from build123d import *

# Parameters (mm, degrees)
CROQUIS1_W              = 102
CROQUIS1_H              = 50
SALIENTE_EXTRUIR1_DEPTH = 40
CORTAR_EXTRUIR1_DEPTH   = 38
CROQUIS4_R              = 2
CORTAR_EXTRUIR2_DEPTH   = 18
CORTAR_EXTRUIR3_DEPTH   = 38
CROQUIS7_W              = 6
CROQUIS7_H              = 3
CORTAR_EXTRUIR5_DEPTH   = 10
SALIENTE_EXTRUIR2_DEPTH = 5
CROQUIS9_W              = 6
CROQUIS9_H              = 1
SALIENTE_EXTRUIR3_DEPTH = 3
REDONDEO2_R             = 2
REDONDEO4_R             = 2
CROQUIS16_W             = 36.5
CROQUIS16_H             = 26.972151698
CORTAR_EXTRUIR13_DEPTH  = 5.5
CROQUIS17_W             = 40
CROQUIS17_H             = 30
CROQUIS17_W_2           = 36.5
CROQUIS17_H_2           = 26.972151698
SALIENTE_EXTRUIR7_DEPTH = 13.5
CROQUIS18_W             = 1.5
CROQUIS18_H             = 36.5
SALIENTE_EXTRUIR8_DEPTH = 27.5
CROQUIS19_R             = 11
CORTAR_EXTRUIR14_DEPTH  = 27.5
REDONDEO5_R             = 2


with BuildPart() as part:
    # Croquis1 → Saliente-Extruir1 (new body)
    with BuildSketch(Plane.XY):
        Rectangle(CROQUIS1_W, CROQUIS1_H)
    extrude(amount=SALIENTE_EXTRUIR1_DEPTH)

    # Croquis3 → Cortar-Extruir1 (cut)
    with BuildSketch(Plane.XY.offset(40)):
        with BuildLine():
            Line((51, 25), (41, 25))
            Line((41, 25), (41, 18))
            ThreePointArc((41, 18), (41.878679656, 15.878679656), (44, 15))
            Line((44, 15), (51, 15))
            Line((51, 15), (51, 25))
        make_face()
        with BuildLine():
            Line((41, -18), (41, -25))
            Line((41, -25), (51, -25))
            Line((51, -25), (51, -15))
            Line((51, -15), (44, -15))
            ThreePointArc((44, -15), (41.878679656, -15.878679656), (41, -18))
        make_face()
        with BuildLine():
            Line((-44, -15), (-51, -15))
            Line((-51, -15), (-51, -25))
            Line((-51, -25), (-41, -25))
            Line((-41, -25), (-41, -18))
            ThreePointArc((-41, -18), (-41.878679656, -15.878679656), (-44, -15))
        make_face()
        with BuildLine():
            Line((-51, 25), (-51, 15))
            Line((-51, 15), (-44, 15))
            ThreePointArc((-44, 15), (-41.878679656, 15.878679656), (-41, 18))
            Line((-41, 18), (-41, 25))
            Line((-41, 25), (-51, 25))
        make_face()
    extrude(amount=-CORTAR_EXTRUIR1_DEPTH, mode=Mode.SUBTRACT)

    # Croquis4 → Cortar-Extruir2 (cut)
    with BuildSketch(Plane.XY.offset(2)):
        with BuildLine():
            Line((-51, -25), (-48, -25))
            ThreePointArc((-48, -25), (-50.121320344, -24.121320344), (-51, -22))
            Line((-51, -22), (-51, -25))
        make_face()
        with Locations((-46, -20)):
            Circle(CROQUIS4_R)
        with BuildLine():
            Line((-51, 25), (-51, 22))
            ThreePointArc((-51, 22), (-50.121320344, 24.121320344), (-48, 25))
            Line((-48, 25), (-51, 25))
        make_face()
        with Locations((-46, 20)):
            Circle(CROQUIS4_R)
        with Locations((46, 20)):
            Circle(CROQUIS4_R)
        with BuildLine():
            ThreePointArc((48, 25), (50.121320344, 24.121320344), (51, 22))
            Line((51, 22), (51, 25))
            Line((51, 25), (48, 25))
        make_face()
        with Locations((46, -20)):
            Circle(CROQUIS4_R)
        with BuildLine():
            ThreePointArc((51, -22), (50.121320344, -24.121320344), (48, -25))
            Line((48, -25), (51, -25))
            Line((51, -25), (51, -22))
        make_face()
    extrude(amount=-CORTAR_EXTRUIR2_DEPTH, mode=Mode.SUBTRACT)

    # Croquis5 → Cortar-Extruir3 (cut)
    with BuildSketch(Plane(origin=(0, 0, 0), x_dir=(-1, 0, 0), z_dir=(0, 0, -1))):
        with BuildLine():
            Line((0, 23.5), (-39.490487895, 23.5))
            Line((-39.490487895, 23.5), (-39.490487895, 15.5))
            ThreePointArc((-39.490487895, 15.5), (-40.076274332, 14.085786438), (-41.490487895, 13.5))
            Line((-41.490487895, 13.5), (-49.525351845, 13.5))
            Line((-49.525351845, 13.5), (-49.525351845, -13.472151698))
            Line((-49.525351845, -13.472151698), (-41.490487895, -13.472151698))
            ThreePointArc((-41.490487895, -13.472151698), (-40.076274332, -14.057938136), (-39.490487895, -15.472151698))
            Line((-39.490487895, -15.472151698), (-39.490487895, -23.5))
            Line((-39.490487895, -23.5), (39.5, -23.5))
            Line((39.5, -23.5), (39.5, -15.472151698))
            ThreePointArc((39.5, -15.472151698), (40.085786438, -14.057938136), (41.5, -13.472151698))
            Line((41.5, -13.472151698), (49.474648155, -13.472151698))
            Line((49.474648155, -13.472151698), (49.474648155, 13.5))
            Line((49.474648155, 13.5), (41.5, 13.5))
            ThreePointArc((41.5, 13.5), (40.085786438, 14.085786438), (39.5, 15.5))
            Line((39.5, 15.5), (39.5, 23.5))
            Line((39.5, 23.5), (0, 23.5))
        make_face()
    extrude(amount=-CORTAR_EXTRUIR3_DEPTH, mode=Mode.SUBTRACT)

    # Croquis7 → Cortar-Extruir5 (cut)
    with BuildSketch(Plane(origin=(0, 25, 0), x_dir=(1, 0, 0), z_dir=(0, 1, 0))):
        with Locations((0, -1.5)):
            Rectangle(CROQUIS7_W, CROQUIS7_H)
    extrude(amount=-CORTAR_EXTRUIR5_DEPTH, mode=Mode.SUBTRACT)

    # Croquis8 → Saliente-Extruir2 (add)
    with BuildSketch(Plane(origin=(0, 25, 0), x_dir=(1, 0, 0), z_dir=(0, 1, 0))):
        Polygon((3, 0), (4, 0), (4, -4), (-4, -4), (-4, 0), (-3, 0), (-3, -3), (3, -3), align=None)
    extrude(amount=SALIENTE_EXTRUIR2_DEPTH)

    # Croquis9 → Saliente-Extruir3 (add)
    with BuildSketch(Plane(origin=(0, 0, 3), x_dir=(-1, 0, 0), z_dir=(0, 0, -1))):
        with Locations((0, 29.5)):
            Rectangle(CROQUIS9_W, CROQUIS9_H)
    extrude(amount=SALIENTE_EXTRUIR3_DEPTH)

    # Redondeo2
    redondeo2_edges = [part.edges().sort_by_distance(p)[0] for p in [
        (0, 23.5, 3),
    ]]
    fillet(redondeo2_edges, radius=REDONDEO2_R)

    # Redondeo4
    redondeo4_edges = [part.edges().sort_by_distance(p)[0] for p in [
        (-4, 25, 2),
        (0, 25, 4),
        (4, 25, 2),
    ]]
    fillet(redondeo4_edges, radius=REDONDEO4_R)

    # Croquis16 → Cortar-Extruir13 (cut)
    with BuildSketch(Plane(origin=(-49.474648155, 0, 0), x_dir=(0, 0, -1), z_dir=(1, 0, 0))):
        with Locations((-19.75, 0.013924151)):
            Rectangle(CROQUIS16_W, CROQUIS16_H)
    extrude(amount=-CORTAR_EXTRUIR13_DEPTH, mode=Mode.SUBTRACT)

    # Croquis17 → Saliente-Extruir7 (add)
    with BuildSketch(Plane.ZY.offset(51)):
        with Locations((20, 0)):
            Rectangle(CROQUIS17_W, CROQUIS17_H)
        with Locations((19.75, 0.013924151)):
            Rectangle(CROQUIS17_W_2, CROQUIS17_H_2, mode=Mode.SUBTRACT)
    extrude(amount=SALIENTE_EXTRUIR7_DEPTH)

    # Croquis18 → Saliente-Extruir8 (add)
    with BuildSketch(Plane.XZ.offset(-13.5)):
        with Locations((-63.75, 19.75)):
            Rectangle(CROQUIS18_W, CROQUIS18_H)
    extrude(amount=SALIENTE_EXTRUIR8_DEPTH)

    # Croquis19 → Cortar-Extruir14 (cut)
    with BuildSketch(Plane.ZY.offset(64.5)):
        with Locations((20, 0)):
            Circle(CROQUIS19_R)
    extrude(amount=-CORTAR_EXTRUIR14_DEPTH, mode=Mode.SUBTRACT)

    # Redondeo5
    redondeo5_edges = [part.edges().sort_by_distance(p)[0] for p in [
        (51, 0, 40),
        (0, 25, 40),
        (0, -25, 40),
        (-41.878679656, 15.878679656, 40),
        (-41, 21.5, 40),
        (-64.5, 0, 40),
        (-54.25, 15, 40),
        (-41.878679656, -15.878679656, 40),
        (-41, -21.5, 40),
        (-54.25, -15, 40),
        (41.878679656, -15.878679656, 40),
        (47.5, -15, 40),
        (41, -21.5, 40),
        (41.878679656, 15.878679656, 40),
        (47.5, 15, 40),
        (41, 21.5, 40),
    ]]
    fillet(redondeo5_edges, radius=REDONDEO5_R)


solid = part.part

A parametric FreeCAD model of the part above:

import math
import FreeCAD as App
import Part
import Sketcher


def edges_at(feature, points):
    """Names of the edges that pass closest to the given points."""
    edges = feature.Shape.Edges
    near = lambda p: min(range(len(edges)), key=lambda i: edges[i].distToShape(Part.Vertex(*p))[0])
    return sorted({f"Edge{near(p) + 1}" for p in points})


def add_polygon(sketch, points):
    """Adds a closed chain of lines whose ends are joined by coincident constraints."""
    first, n = sketch.GeometryCount, len(points)
    for a, b in zip(points, points[1:] + points[:1]):
        sketch.addGeometry(Part.LineSegment(App.Vector(*a, 0), App.Vector(*b, 0)), False)
    for i in range(n):
        sketch.addConstraint(Sketcher.Constraint("Coincident", first + i, 2, first + (i + 1) % n, 1))

doc = App.newDocument("Part")
body = doc.addObject("PartDesign::Body", "Body")

sketch1 = doc.addObject("Sketcher::SketchObject", "Sketch")
body.addObject(sketch1)
sketch1.AttachmentSupport = (doc.XY_Plane, [""])
sketch1.MapMode = "FlatFace"
add_polygon(sketch1, [(-51, 25), (-51, -25), (51, -25), (51, 25)])
sketch1.addConstraint(Sketcher.Constraint("Vertical", 0))
sketch1.addConstraint(Sketcher.Constraint("Horizontal", 1))
sketch1.addConstraint(Sketcher.Constraint("Vertical", 2))
sketch1.addConstraint(Sketcher.Constraint("Horizontal", 3))
sketch1.addConstraint(Sketcher.Constraint("Symmetric", 0, 2, 2, 2, -1, 1))
sketch1.addConstraint(Sketcher.Constraint("DistanceX", 1, 1, 1, 2, 102.0))
sketch1.addConstraint(Sketcher.Constraint("DistanceY", 0, 2, 0, 1, 50.0))
pad1 = doc.addObject("PartDesign::Pad", "Pad")
body.addObject(pad1)
pad1.Profile = sketch1
pad1.Length = 40

sketch2 = doc.addObject("Sketcher::SketchObject", "Sketch001")
body.addObject(sketch2)
sketch2.AttachmentSupport = (doc.XY_Plane, [""])
sketch2.MapMode = "FlatFace"
sketch2.AttachmentOffset = App.Placement(App.Vector(0, 0, 40), App.Rotation())
sketch2.addGeometry(Part.LineSegment(App.Vector(51, 25, 0), App.Vector(41, 25, 0)), False)
sketch2.addGeometry(Part.LineSegment(App.Vector(41, 25, 0), App.Vector(41, 18, 0)), False)
sketch2.addGeometry(Part.ArcOfCircle(Part.Circle(App.Vector(44, 18, 0), App.Vector(0, 0, 1), 3), math.radians(180), math.radians(270)), False)
sketch2.addGeometry(Part.LineSegment(App.Vector(44, 15, 0), App.Vector(51, 15, 0)), False)
sketch2.addGeometry(Part.LineSegment(App.Vector(51, 15, 0), App.Vector(51, 25, 0)), False)
sketch2.addGeometry(Part.LineSegment(App.Vector(41, -18, 0), App.Vector(41, -25, 0)), False)
sketch2.addGeometry(Part.LineSegment(App.Vector(41, -25, 0), App.Vector(51, -25, 0)), False)
sketch2.addGeometry(Part.LineSegment(App.Vector(51, -25, 0), App.Vector(51, -15, 0)), False)
sketch2.addGeometry(Part.LineSegment(App.Vector(51, -15, 0), App.Vector(44, -15, 0)), False)
sketch2.addGeometry(Part.ArcOfCircle(Part.Circle(App.Vector(44, -18, 0), App.Vector(0, 0, 1), 3), math.radians(90), math.radians(180)), False)
sketch2.addGeometry(Part.LineSegment(App.Vector(-44, -15, 0), App.Vector(-51, -15, 0)), False)
sketch2.addGeometry(Part.LineSegment(App.Vector(-51, -15, 0), App.Vector(-51, -25, 0)), False)
sketch2.addGeometry(Part.LineSegment(App.Vector(-51, -25, 0), App.Vector(-41, -25, 0)), False)
sketch2.addGeometry(Part.LineSegment(App.Vector(-41, -25, 0), App.Vector(-41, -18, 0)), False)
sketch2.addGeometry(Part.ArcOfCircle(Part.Circle(App.Vector(-44, -18, 0), App.Vector(0, 0, 1), 3), math.radians(0), math.radians(90)), False)
sketch2.addGeometry(Part.LineSegment(App.Vector(-51, 25, 0), App.Vector(-51, 15, 0)), False)
sketch2.addGeometry(Part.LineSegment(App.Vector(-51, 15, 0), App.Vector(-44, 15, 0)), False)
sketch2.addGeometry(Part.ArcOfCircle(Part.Circle(App.Vector(-44, 18, 0), App.Vector(0, 0, 1), 3), math.radians(-90), math.radians(0)), False)
sketch2.addGeometry(Part.LineSegment(App.Vector(-41, 18, 0), App.Vector(-41, 25, 0)), False)
sketch2.addGeometry(Part.LineSegment(App.Vector(-41, 25, 0), App.Vector(-51, 25, 0)), False)
sketch2.addConstraint(Sketcher.Constraint("Coincident", 0, 2, 1, 1))
sketch2.addConstraint(Sketcher.Constraint("Tangent", 1, 2, 2, 1))
sketch2.addConstraint(Sketcher.Constraint("Tangent", 2, 2, 3, 1))
sketch2.addConstraint(Sketcher.Constraint("Coincident", 3, 2, 4, 1))
sketch2.addConstraint(Sketcher.Constraint("Coincident", 4, 2, 0, 1))
sketch2.addConstraint(Sketcher.Constraint("Coincident", 5, 2, 6, 1))
sketch2.addConstraint(Sketcher.Constraint("Coincident", 6, 2, 7, 1))
sketch2.addConstraint(Sketcher.Constraint("Coincident", 7, 2, 8, 1))
sketch2.addConstraint(Sketcher.Constraint("Tangent", 8, 2, 9, 1))
sketch2.addConstraint(Sketcher.Constraint("Tangent", 9, 2, 5, 1))
sketch2.addConstraint(Sketcher.Constraint("Coincident", 10, 2, 11, 1))
sketch2.addConstraint(Sketcher.Constraint("Coincident", 11, 2, 12, 1))
sketch2.addConstraint(Sketcher.Constraint("Coincident", 12, 2, 13, 1))
sketch2.addConstraint(Sketcher.Constraint("Tangent", 13, 2, 14, 1))
sketch2.addConstraint(Sketcher.Constraint("Tangent", 14, 2, 10, 1))
sketch2.addConstraint(Sketcher.Constraint("Coincident", 15, 2, 16, 1))
sketch2.addConstraint(Sketcher.Constraint("Tangent", 16, 2, 17, 1))
sketch2.addConstraint(Sketcher.Constraint("Tangent", 17, 2, 18, 1))
sketch2.addConstraint(Sketcher.Constraint("Coincident", 18, 2, 19, 1))
sketch2.addConstraint(Sketcher.Constraint("Coincident", 19, 2, 15, 1))
sketch2.addConstraint(Sketcher.Constraint("Horizontal", 0))
sketch2.addConstraint(Sketcher.Constraint("Vertical", 1))
sketch2.addConstraint(Sketcher.Constraint("Horizontal", 3))
sketch2.addConstraint(Sketcher.Constraint("Vertical", 4))
sketch2.addConstraint(Sketcher.Constraint("Vertical", 5))
sketch2.addConstraint(Sketcher.Constraint("Horizontal", 6))
sketch2.addConstraint(Sketcher.Constraint("Vertical", 7))
sketch2.addConstraint(Sketcher.Constraint("Horizontal", 8))
sketch2.addConstraint(Sketcher.Constraint("Horizontal", 10))
sketch2.addConstraint(Sketcher.Constraint("Vertical", 11))
sketch2.addConstraint(Sketcher.Constraint("Horizontal", 12))
sketch2.addConstraint(Sketcher.Constraint("Vertical", 13))
sketch2.addConstraint(Sketcher.Constraint("Vertical", 15))
sketch2.addConstraint(Sketcher.Constraint("Horizontal", 16))
sketch2.addConstraint(Sketcher.Constraint("Vertical", 18))
sketch2.addConstraint(Sketcher.Constraint("Horizontal", 19))
sketch2.addConstraint(Sketcher.Constraint("Equal", 2, 9))
sketch2.addConstraint(Sketcher.Constraint("Equal", 9, 14))
sketch2.addConstraint(Sketcher.Constraint("Equal", 14, 17))
sketch2.addConstraint(Sketcher.Constraint("Symmetric", 2, 3, 14, 3, -1, 1))
sketch2.addConstraint(Sketcher.Constraint("Symmetric", 9, 3, 17, 3, -1, 1))
sketch2.addConstraint(Sketcher.Constraint("Symmetric", 4, 2, 11, 2, -1, 1))
sketch2.addConstraint(Sketcher.Constraint("Symmetric", 6, 2, 19, 2, -1, 1))
sketch2.addConstraint(Sketcher.Constraint("Symmetric", 9, 3, 14, 3, -2))
sketch2.addConstraint(Sketcher.Constraint("Symmetric", 6, 2, 11, 2, -2))
sketch2.addConstraint(Sketcher.Constraint("Equal", 16, 1))
sketch2.addConstraint(Sketcher.Constraint("Radius", 2, 3.0))
sketch2.addConstraint(Sketcher.Constraint("DistanceX", 0, 2, 0, 1, 10.0))
sketch2.addConstraint(Sketcher.Constraint("DistanceX", -1, 1, 2, 3, 44.0))
sketch2.addConstraint(Sketcher.Constraint("DistanceY", -1, 1, 2, 3, 18.0))
pocket1 = doc.addObject("PartDesign::Pocket", "Pocket")
body.addObject(pocket1)
pocket1.Profile = sketch2
pocket1.Length = 38

sketch3 = doc.addObject("Sketcher::SketchObject", "Sketch002")
body.addObject(sketch3)
sketch3.AttachmentSupport = (doc.XY_Plane, [""])
sketch3.MapMode = "FlatFace"
sketch3.AttachmentOffset = App.Placement(App.Vector(0, 0, 2), App.Rotation())
sketch3.addGeometry(Part.LineSegment(App.Vector(-51, -25, 0), App.Vector(-48, -25, 0)), False)
sketch3.addGeometry(Part.ArcOfCircle(Part.Circle(App.Vector(-48, -22, 0), App.Vector(0, 0, 1), 3), math.radians(180), math.radians(270)), False)
sketch3.addGeometry(Part.LineSegment(App.Vector(-51, -22, 0), App.Vector(-51, -25, 0)), False)
sketch3.addGeometry(Part.Circle(App.Vector(-46, -20, 0), App.Vector(0, 0, 1), 2), False)
sketch3.addGeometry(Part.LineSegment(App.Vector(-51, 25, 0), App.Vector(-51, 22, 0)), False)
sketch3.addGeometry(Part.ArcOfCircle(Part.Circle(App.Vector(-48, 22, 0), App.Vector(0, 0, 1), 3), math.radians(90), math.radians(180)), False)
sketch3.addGeometry(Part.LineSegment(App.Vector(-48, 25, 0), App.Vector(-51, 25, 0)), False)
sketch3.addGeometry(Part.Circle(App.Vector(-46, 20, 0), App.Vector(0, 0, 1), 2), False)
sketch3.addGeometry(Part.Circle(App.Vector(46, 20, 0), App.Vector(0, 0, 1), 2), False)
sketch3.addGeometry(Part.ArcOfCircle(Part.Circle(App.Vector(48, 22, 0), App.Vector(0, 0, 1), 3), math.radians(0), math.radians(90)), False)
sketch3.addGeometry(Part.LineSegment(App.Vector(51, 22, 0), App.Vector(51, 25, 0)), False)
sketch3.addGeometry(Part.LineSegment(App.Vector(51, 25, 0), App.Vector(48, 25, 0)), False)
sketch3.addGeometry(Part.Circle(App.Vector(46, -20, 0), App.Vector(0, 0, 1), 2), False)
sketch3.addGeometry(Part.ArcOfCircle(Part.Circle(App.Vector(48, -22, 0), App.Vector(0, 0, 1), 3), math.radians(-90), math.radians(0)), False)
sketch3.addGeometry(Part.LineSegment(App.Vector(48, -25, 0), App.Vector(51, -25, 0)), False)
sketch3.addGeometry(Part.LineSegment(App.Vector(51, -25, 0), App.Vector(51, -22, 0)), False)
sketch3.addConstraint(Sketcher.Constraint("Tangent", 0, 2, 1, 2))
sketch3.addConstraint(Sketcher.Constraint("Tangent", 1, 1, 2, 1))
sketch3.addConstraint(Sketcher.Constraint("Coincident", 2, 2, 0, 1))
sketch3.addConstraint(Sketcher.Constraint("Tangent", 4, 2, 5, 2))
sketch3.addConstraint(Sketcher.Constraint("Tangent", 5, 1, 6, 1))
sketch3.addConstraint(Sketcher.Constraint("Coincident", 6, 2, 4, 1))
sketch3.addConstraint(Sketcher.Constraint("Tangent", 9, 1, 10, 1))
sketch3.addConstraint(Sketcher.Constraint("Coincident", 10, 2, 11, 1))
sketch3.addConstraint(Sketcher.Constraint("Tangent", 11, 2, 9, 2))
sketch3.addConstraint(Sketcher.Constraint("Tangent", 13, 1, 14, 1))
sketch3.addConstraint(Sketcher.Constraint("Coincident", 14, 2, 15, 1))
sketch3.addConstraint(Sketcher.Constraint("Tangent", 15, 2, 13, 2))
sketch3.addConstraint(Sketcher.Constraint("Horizontal", 0))
sketch3.addConstraint(Sketcher.Constraint("Vertical", 2))
sketch3.addConstraint(Sketcher.Constraint("Vertical", 4))
sketch3.addConstraint(Sketcher.Constraint("Horizontal", 6))
sketch3.addConstraint(Sketcher.Constraint("Vertical", 10))
sketch3.addConstraint(Sketcher.Constraint("Horizontal", 11))
sketch3.addConstraint(Sketcher.Constraint("Horizontal", 14))
sketch3.addConstraint(Sketcher.Constraint("Vertical", 15))
sketch3.addConstraint(Sketcher.Constraint("Equal", 1, 5))
sketch3.addConstraint(Sketcher.Constraint("Equal", 3, 7))
sketch3.addConstraint(Sketcher.Constraint("Equal", 7, 8))
sketch3.addConstraint(Sketcher.Constraint("Equal", 5, 9))
sketch3.addConstraint(Sketcher.Constraint("Equal", 8, 12))
sketch3.addConstraint(Sketcher.Constraint("Equal", 9, 13))
sketch3.addConstraint(Sketcher.Constraint("Symmetric", 3, 3, 8, 3, -1, 1))
sketch3.addConstraint(Sketcher.Constraint("Symmetric", 1, 3, 9, 3, -1, 1))
sketch3.addConstraint(Sketcher.Constraint("Symmetric", 7, 3, 12, 3, -1, 1))
sketch3.addConstraint(Sketcher.Constraint("Symmetric", 5, 3, 13, 3, -1, 1))
sketch3.addConstraint(Sketcher.Constraint("Symmetric", 7, 3, 8, 3, -2))
sketch3.addConstraint(Sketcher.Constraint("Symmetric", 5, 3, 9, 3, -2))
sketch3.addConstraint(Sketcher.Constraint("Diameter", 3, 4.0))
sketch3.addConstraint(Sketcher.Constraint("Radius", 1, 3.0))
sketch3.addConstraint(Sketcher.Constraint("DistanceX", 1, 3, -1, 1, 48.0))
sketch3.addConstraint(Sketcher.Constraint("DistanceY", 1, 3, -1, 1, 22.0))
sketch3.addConstraint(Sketcher.Constraint("DistanceX", 3, 3, -1, 1, 46.0))
sketch3.addConstraint(Sketcher.Constraint("DistanceY", 3, 3, -1, 1, 20.0))
pocket2 = doc.addObject("PartDesign::Pocket", "Pocket001")
body.addObject(pocket2)
pocket2.Profile = sketch3
pocket2.Length = 18

sketch4 = doc.addObject("Sketcher::SketchObject", "Sketch003")
body.addObject(sketch4)
sketch4.AttachmentSupport = (doc.XY_Plane, [""])
sketch4.MapMode = "FlatFace"
sketch4.addGeometry(Part.LineSegment(App.Vector(39.490488, 23.5, 0), App.Vector(39.490488, 15.5, 0)), False)
sketch4.addGeometry(Part.ArcOfCircle(Part.Circle(App.Vector(41.490488, 15.5, 0), App.Vector(0, 0, 1), 2), math.radians(180), math.radians(270)), False)
sketch4.addGeometry(Part.LineSegment(App.Vector(41.490488, 13.5, 0), App.Vector(49.525352, 13.5, 0)), False)
sketch4.addGeometry(Part.LineSegment(App.Vector(49.525352, 13.5, 0), App.Vector(49.525352, -13.472152, 0)), False)
sketch4.addGeometry(Part.LineSegment(App.Vector(49.525352, -13.472152, 0), App.Vector(41.490488, -13.472152, 0)), False)
sketch4.addGeometry(Part.ArcOfCircle(Part.Circle(App.Vector(41.490488, -15.472152, 0), App.Vector(0, 0, 1), 2), math.radians(90), math.radians(180)), False)
sketch4.addGeometry(Part.LineSegment(App.Vector(39.490488, -15.472152, 0), App.Vector(39.490488, -23.5, 0)), False)
sketch4.addGeometry(Part.LineSegment(App.Vector(39.490488, -23.5, 0), App.Vector(-39.5, -23.5, 0)), False)
sketch4.addGeometry(Part.LineSegment(App.Vector(-39.5, -23.5, 0), App.Vector(-39.5, -15.472152, 0)), False)
sketch4.addGeometry(Part.ArcOfCircle(Part.Circle(App.Vector(-41.5, -15.472152, 0), App.Vector(0, 0, 1), 2), math.radians(0), math.radians(90)), False)
sketch4.addGeometry(Part.LineSegment(App.Vector(-41.5, -13.472152, 0), App.Vector(-49.474648, -13.472152, 0)), False)
sketch4.addGeometry(Part.LineSegment(App.Vector(-49.474648, -13.472152, 0), App.Vector(-49.474648, 13.5, 0)), False)
sketch4.addGeometry(Part.LineSegment(App.Vector(-49.474648, 13.5, 0), App.Vector(-41.5, 13.5, 0)), False)
sketch4.addGeometry(Part.ArcOfCircle(Part.Circle(App.Vector(-41.5, 15.5, 0), App.Vector(0, 0, 1), 2), math.radians(-90), math.radians(0)), False)
sketch4.addGeometry(Part.LineSegment(App.Vector(-39.5, 15.5, 0), App.Vector(-39.5, 23.5, 0)), False)
sketch4.addGeometry(Part.LineSegment(App.Vector(-39.5, 23.5, 0), App.Vector(39.490488, 23.5, 0)), False)
sketch4.addConstraint(Sketcher.Constraint("Tangent", 0, 2, 1, 1))
sketch4.addConstraint(Sketcher.Constraint("Tangent", 1, 2, 2, 1))
sketch4.addConstraint(Sketcher.Constraint("Coincident", 2, 2, 3, 1))
sketch4.addConstraint(Sketcher.Constraint("Coincident", 3, 2, 4, 1))
sketch4.addConstraint(Sketcher.Constraint("Tangent", 4, 2, 5, 1))
sketch4.addConstraint(Sketcher.Constraint("Tangent", 5, 2, 6, 1))
sketch4.addConstraint(Sketcher.Constraint("Coincident", 6, 2, 7, 1))
sketch4.addConstraint(Sketcher.Constraint("Coincident", 7, 2, 8, 1))
sketch4.addConstraint(Sketcher.Constraint("Tangent", 8, 2, 9, 1))
sketch4.addConstraint(Sketcher.Constraint("Tangent", 9, 2, 10, 1))
sketch4.addConstraint(Sketcher.Constraint("Coincident", 10, 2, 11, 1))
sketch4.addConstraint(Sketcher.Constraint("Coincident", 11, 2, 12, 1))
sketch4.addConstraint(Sketcher.Constraint("Tangent", 12, 2, 13, 1))
sketch4.addConstraint(Sketcher.Constraint("Tangent", 13, 2, 14, 1))
sketch4.addConstraint(Sketcher.Constraint("Coincident", 14, 2, 15, 1))
sketch4.addConstraint(Sketcher.Constraint("Coincident", 15, 2, 0, 1))
sketch4.addConstraint(Sketcher.Constraint("Vertical", 0))
sketch4.addConstraint(Sketcher.Constraint("Horizontal", 2))
sketch4.addConstraint(Sketcher.Constraint("Vertical", 3))
sketch4.addConstraint(Sketcher.Constraint("Horizontal", 4))
sketch4.addConstraint(Sketcher.Constraint("Vertical", 6))
sketch4.addConstraint(Sketcher.Constraint("Horizontal", 7))
sketch4.addConstraint(Sketcher.Constraint("Vertical", 8))
sketch4.addConstraint(Sketcher.Constraint("Horizontal", 10))
sketch4.addConstraint(Sketcher.Constraint("Vertical", 11))
sketch4.addConstraint(Sketcher.Constraint("Horizontal", 12))
sketch4.addConstraint(Sketcher.Constraint("Vertical", 14))
sketch4.addConstraint(Sketcher.Constraint("Horizontal", 15))
sketch4.addConstraint(Sketcher.Constraint("Equal", 1, 5))
sketch4.addConstraint(Sketcher.Constraint("Equal", 5, 9))
sketch4.addConstraint(Sketcher.Constraint("Equal", 9, 13))
sketch4.addConstraint(Sketcher.Constraint("Symmetric", 7, 2, 14, 2, -1))
sketch4.addConstraint(Sketcher.Constraint("Horizontal", 5, 3, 9, 3))
sketch4.addConstraint(Sketcher.Constraint("Horizontal", 1, 3, 13, 3))
sketch4.addConstraint(Sketcher.Constraint("Vertical", 1, 3, 5, 3))
sketch4.addConstraint(Sketcher.Constraint("Radius", 1, 2.0))
sketch4.addConstraint(Sketcher.Constraint("DistanceY", 0, 2, 0, 1, 8.0))
sketch4.addConstraint(Sketcher.Constraint("DistanceY", 6, 2, 1, 2, 37.0))
sketch4.addConstraint(Sketcher.Constraint("DistanceX", 9, 3, -1, 1, 41.5))
sketch4.addConstraint(Sketcher.Constraint("DistanceX", 10, 2, 10, 1, 7.974648))
sketch4.addConstraint(Sketcher.Constraint("DistanceY", 3, 2, 3, 1, 26.972152))
sketch4.addConstraint(Sketcher.Constraint("DistanceX", 2, 1, 2, 2, 8.034864))
sketch4.addConstraint(Sketcher.Constraint("DistanceX", 7, 2, 7, 1, 78.990488))
pocket3 = doc.addObject("PartDesign::Pocket", "Pocket002")
body.addObject(pocket3)
pocket3.Profile = sketch4
pocket3.Length = 38
pocket3.Reversed = True

sketch5 = doc.addObject("Sketcher::SketchObject", "Sketch004")
body.addObject(sketch5)
sketch5.AttachmentSupport = (doc.XZ_Plane, [""])
sketch5.MapMode = "FlatFace"
sketch5.AttachmentOffset = App.Placement(App.Vector(0, 0, -25), App.Rotation())
add_polygon(sketch5, [(-3, 0), (-3, 3), (3, 3), (3, 0)])
sketch5.addConstraint(Sketcher.Constraint("Vertical", 0))
sketch5.addConstraint(Sketcher.Constraint("Horizontal", 1))
sketch5.addConstraint(Sketcher.Constraint("Vertical", 2))
sketch5.addConstraint(Sketcher.Constraint("Horizontal", 3))
sketch5.addConstraint(Sketcher.Constraint("Symmetric", 2, 2, 3, 2, -1, 1))
sketch5.addConstraint(Sketcher.Constraint("DistanceX", 1, 1, 1, 2, 6.0))
sketch5.addConstraint(Sketcher.Constraint("DistanceY", 0, 1, 0, 2, 3.0))
pocket4 = doc.addObject("PartDesign::Pocket", "Pocket003")
body.addObject(pocket4)
pocket4.Profile = sketch5
pocket4.Length = 10
pocket4.Reversed = True

sketch6 = doc.addObject("Sketcher::SketchObject", "Sketch005")
body.addObject(sketch6)
sketch6.AttachmentSupport = (doc.XZ_Plane, [""])
sketch6.MapMode = "FlatFace"
sketch6.AttachmentOffset = App.Placement(App.Vector(0, 0, -25), App.Rotation())
add_polygon(sketch6, [(4, 0), (3, 0), (3, 3), (-3, 3), (-3, 0), (-4, 0), (-4, 4), (4, 4)])
sketch6.addConstraint(Sketcher.Constraint("Horizontal", 0))
sketch6.addConstraint(Sketcher.Constraint("Vertical", 1))
sketch6.addConstraint(Sketcher.Constraint("Horizontal", 2))
sketch6.addConstraint(Sketcher.Constraint("Vertical", 3))
sketch6.addConstraint(Sketcher.Constraint("Horizontal", 4))
sketch6.addConstraint(Sketcher.Constraint("Vertical", 5))
sketch6.addConstraint(Sketcher.Constraint("Horizontal", 6))
sketch6.addConstraint(Sketcher.Constraint("Vertical", 7))
sketch6.addConstraint(Sketcher.Constraint("Symmetric", 0, 2, 3, 2, -1, 1))
sketch6.addConstraint(Sketcher.Constraint("Symmetric", 4, 2, 7, 2, -2))
sketch6.addConstraint(Sketcher.Constraint("DistanceX", 0, 2, 0, 1, 1.0))
sketch6.addConstraint(Sketcher.Constraint("DistanceX", 2, 2, 2, 1, 6.0))
sketch6.addConstraint(Sketcher.Constraint("DistanceY", 1, 1, 1, 2, 3.0))
sketch6.addConstraint(Sketcher.Constraint("DistanceY", 5, 1, 5, 2, 4.0))
pad2 = doc.addObject("PartDesign::Pad", "Pad001")
body.addObject(pad2)
pad2.Profile = sketch6
pad2.Length = 5
pad2.Reversed = True

sketch7 = doc.addObject("Sketcher::SketchObject", "Sketch006")
body.addObject(sketch7)
sketch7.AttachmentSupport = (doc.XY_Plane, [""])
sketch7.MapMode = "FlatFace"
sketch7.AttachmentOffset = App.Placement(App.Vector(0, 0, 3), App.Rotation())
add_polygon(sketch7, [(3, 30), (3, 29), (-3, 29), (-3, 30)])
sketch7.addConstraint(Sketcher.Constraint("Vertical", 0))
sketch7.addConstraint(Sketcher.Constraint("Horizontal", 1))
sketch7.addConstraint(Sketcher.Constraint("Vertical", 2))
sketch7.addConstraint(Sketcher.Constraint("Horizontal", 3))
sketch7.addConstraint(Sketcher.Constraint("DistanceX", 1, 2, 1, 1, 6.0))
sketch7.addConstraint(Sketcher.Constraint("DistanceY", 0, 2, 0, 1, 1.0))
sketch7.addConstraint(Sketcher.Constraint("DistanceX", -1, 1, 0, 2, 3.0))
sketch7.addConstraint(Sketcher.Constraint("DistanceY", -1, 1, 0, 2, 29.0))
pad3 = doc.addObject("PartDesign::Pad", "Pad002")
body.addObject(pad3)
pad3.Profile = sketch7
pad3.Length = 3
pad3.Reversed = True
doc.recompute()

fillet = doc.addObject("PartDesign::Fillet", "Fillet")
body.addObject(fillet)
fillet.Base = (pad3, edges_at(pad3, [(0, 23.5, 3)]))
fillet.Radius = 2
doc.recompute()

fillet2 = doc.addObject("PartDesign::Fillet", "Fillet001")
body.addObject(fillet2)
fillet2.Base = (fillet, edges_at(fillet, [(-4, 25, 2), (0, 25, 4), (4, 25, 2)]))
fillet2.Radius = 2

sketch8 = doc.addObject("Sketcher::SketchObject", "Sketch007")
body.addObject(sketch8)
sketch8.AttachmentSupport = (doc.YZ_Plane, [""])
sketch8.MapMode = "FlatFace"
sketch8.AttachmentOffset = App.Placement(App.Vector(0, 0, -49.474648), App.Rotation())
add_polygon(sketch8, [(13.5, 38), (-13.472152, 38), (-13.472152, 1.5), (13.5, 1.5)])
sketch8.addConstraint(Sketcher.Constraint("Horizontal", 0))
sketch8.addConstraint(Sketcher.Constraint("Vertical", 1))
sketch8.addConstraint(Sketcher.Constraint("Horizontal", 2))
sketch8.addConstraint(Sketcher.Constraint("Vertical", 3))
sketch8.addConstraint(Sketcher.Constraint("DistanceY", 1, 2, 1, 1, 36.5))
sketch8.addConstraint(Sketcher.Constraint("DistanceY", -1, 1, 0, 2, 38.0))
sketch8.addConstraint(Sketcher.Constraint("DistanceX", -1, 1, 2, 2, 13.5))
sketch8.addConstraint(Sketcher.Constraint("DistanceX", 0, 2, 0, 1, 26.972152))
pocket5 = doc.addObject("PartDesign::Pocket", "Pocket004")
body.addObject(pocket5)
pocket5.Profile = sketch8
pocket5.Length = 5.5

sketch9 = doc.addObject("Sketcher::SketchObject", "Sketch008")
body.addObject(sketch9)
sketch9.AttachmentSupport = (doc.YZ_Plane, [""])
sketch9.MapMode = "FlatFace"
sketch9.AttachmentOffset = App.Placement(App.Vector(0, 0, -51), App.Rotation())
add_polygon(sketch9, [(15, 0), (-15, 0), (-15, 40), (15, 40)])
add_polygon(sketch9, [(-13.472152, 38), (-13.472152, 1.5), (13.5, 1.5), (13.5, 38)])
sketch9.addConstraint(Sketcher.Constraint("Horizontal", 0))
sketch9.addConstraint(Sketcher.Constraint("Vertical", 1))
sketch9.addConstraint(Sketcher.Constraint("Horizontal", 2))
sketch9.addConstraint(Sketcher.Constraint("Vertical", 3))
sketch9.addConstraint(Sketcher.Constraint("Vertical", 4))
sketch9.addConstraint(Sketcher.Constraint("Horizontal", 5))
sketch9.addConstraint(Sketcher.Constraint("Vertical", 6))
sketch9.addConstraint(Sketcher.Constraint("Horizontal", 7))
sketch9.addConstraint(Sketcher.Constraint("Symmetric", 0, 2, 3, 2, -1, 1))
sketch9.addConstraint(Sketcher.Constraint("DistanceX", 0, 2, 0, 1, 30.0))
sketch9.addConstraint(Sketcher.Constraint("DistanceY", 1, 1, 1, 2, 40.0))
sketch9.addConstraint(Sketcher.Constraint("DistanceY", 4, 2, 4, 1, 36.5))
sketch9.addConstraint(Sketcher.Constraint("DistanceY", -1, 1, 6, 2, 38.0))
sketch9.addConstraint(Sketcher.Constraint("DistanceX", -1, 1, 5, 2, 13.5))
sketch9.addConstraint(Sketcher.Constraint("DistanceX", 5, 1, 5, 2, 26.972152))
pad4 = doc.addObject("PartDesign::Pad", "Pad003")
body.addObject(pad4)
pad4.Profile = sketch9
pad4.Length = 13.5
pad4.Reversed = True

sketch10 = doc.addObject("Sketcher::SketchObject", "Sketch009")
body.addObject(sketch10)
sketch10.AttachmentSupport = (doc.XZ_Plane, [""])
sketch10.MapMode = "FlatFace"
sketch10.AttachmentOffset = App.Placement(App.Vector(0, 0, -13.5), App.Rotation())
add_polygon(sketch10, [(-64.5, 38), (-64.5, 1.5), (-63, 1.5), (-63, 38)])
sketch10.addConstraint(Sketcher.Constraint("Vertical", 0))
sketch10.addConstraint(Sketcher.Constraint("Horizontal", 1))
sketch10.addConstraint(Sketcher.Constraint("Vertical", 2))
sketch10.addConstraint(Sketcher.Constraint("Horizontal", 3))
sketch10.addConstraint(Sketcher.Constraint("DistanceX", 1, 1, 1, 2, 1.5))
sketch10.addConstraint(Sketcher.Constraint("DistanceY", 0, 2, 0, 1, 36.5))
sketch10.addConstraint(Sketcher.Constraint("DistanceX", 1, 2, -1, 1, 63.0))
sketch10.addConstraint(Sketcher.Constraint("DistanceY", -1, 1, 2, 2, 38.0))
pad5 = doc.addObject("PartDesign::Pad", "Pad004")
body.addObject(pad5)
pad5.Profile = sketch10
pad5.Length = 27.5

sketch11 = doc.addObject("Sketcher::SketchObject", "Sketch010")
body.addObject(sketch11)
sketch11.AttachmentSupport = (doc.YZ_Plane, [""])
sketch11.MapMode = "FlatFace"
sketch11.AttachmentOffset = App.Placement(App.Vector(0, 0, -64.5), App.Rotation())
sketch11.addGeometry(Part.Circle(App.Vector(0, 20, 0), App.Vector(0, 0, 1), 11), False)
sketch11.addConstraint(Sketcher.Constraint("PointOnObject", 0, 3, -2))
sketch11.addConstraint(Sketcher.Constraint("Diameter", 0, 22.0))
sketch11.addConstraint(Sketcher.Constraint("DistanceY", -1, 1, 0, 3, 20.0))
pocket6 = doc.addObject("PartDesign::Pocket", "Pocket005")
body.addObject(pocket6)
pocket6.Profile = sketch11
pocket6.Length = 27.5
pocket6.Reversed = True
doc.recompute()

fillet3 = doc.addObject("PartDesign::Fillet", "Fillet002")
body.addObject(fillet3)
fillet3.Base = (pocket6, edges_at(pocket6, [
    (51, 0, 40),
    (0, 25, 40),
    (0, -25, 40),
    (-41.879, 15.879, 40),
    (-41, 21.5, 40),
    (-64.5, 0, 40),
    (-54.25, 15, 40),
    (-41.879, -15.879, 40),
    (-41, -21.5, 40),
    (-54.25, -15, 40),
    (41.879, -15.879, 40),
    (47.5, -15, 40),
    (41, -21.5, 40),
    (41.879, 15.879, 40),
    (47.5, 15, 40),
    (41, 21.5, 40),
]))
fillet3.Radius = 2

doc.recompute()
